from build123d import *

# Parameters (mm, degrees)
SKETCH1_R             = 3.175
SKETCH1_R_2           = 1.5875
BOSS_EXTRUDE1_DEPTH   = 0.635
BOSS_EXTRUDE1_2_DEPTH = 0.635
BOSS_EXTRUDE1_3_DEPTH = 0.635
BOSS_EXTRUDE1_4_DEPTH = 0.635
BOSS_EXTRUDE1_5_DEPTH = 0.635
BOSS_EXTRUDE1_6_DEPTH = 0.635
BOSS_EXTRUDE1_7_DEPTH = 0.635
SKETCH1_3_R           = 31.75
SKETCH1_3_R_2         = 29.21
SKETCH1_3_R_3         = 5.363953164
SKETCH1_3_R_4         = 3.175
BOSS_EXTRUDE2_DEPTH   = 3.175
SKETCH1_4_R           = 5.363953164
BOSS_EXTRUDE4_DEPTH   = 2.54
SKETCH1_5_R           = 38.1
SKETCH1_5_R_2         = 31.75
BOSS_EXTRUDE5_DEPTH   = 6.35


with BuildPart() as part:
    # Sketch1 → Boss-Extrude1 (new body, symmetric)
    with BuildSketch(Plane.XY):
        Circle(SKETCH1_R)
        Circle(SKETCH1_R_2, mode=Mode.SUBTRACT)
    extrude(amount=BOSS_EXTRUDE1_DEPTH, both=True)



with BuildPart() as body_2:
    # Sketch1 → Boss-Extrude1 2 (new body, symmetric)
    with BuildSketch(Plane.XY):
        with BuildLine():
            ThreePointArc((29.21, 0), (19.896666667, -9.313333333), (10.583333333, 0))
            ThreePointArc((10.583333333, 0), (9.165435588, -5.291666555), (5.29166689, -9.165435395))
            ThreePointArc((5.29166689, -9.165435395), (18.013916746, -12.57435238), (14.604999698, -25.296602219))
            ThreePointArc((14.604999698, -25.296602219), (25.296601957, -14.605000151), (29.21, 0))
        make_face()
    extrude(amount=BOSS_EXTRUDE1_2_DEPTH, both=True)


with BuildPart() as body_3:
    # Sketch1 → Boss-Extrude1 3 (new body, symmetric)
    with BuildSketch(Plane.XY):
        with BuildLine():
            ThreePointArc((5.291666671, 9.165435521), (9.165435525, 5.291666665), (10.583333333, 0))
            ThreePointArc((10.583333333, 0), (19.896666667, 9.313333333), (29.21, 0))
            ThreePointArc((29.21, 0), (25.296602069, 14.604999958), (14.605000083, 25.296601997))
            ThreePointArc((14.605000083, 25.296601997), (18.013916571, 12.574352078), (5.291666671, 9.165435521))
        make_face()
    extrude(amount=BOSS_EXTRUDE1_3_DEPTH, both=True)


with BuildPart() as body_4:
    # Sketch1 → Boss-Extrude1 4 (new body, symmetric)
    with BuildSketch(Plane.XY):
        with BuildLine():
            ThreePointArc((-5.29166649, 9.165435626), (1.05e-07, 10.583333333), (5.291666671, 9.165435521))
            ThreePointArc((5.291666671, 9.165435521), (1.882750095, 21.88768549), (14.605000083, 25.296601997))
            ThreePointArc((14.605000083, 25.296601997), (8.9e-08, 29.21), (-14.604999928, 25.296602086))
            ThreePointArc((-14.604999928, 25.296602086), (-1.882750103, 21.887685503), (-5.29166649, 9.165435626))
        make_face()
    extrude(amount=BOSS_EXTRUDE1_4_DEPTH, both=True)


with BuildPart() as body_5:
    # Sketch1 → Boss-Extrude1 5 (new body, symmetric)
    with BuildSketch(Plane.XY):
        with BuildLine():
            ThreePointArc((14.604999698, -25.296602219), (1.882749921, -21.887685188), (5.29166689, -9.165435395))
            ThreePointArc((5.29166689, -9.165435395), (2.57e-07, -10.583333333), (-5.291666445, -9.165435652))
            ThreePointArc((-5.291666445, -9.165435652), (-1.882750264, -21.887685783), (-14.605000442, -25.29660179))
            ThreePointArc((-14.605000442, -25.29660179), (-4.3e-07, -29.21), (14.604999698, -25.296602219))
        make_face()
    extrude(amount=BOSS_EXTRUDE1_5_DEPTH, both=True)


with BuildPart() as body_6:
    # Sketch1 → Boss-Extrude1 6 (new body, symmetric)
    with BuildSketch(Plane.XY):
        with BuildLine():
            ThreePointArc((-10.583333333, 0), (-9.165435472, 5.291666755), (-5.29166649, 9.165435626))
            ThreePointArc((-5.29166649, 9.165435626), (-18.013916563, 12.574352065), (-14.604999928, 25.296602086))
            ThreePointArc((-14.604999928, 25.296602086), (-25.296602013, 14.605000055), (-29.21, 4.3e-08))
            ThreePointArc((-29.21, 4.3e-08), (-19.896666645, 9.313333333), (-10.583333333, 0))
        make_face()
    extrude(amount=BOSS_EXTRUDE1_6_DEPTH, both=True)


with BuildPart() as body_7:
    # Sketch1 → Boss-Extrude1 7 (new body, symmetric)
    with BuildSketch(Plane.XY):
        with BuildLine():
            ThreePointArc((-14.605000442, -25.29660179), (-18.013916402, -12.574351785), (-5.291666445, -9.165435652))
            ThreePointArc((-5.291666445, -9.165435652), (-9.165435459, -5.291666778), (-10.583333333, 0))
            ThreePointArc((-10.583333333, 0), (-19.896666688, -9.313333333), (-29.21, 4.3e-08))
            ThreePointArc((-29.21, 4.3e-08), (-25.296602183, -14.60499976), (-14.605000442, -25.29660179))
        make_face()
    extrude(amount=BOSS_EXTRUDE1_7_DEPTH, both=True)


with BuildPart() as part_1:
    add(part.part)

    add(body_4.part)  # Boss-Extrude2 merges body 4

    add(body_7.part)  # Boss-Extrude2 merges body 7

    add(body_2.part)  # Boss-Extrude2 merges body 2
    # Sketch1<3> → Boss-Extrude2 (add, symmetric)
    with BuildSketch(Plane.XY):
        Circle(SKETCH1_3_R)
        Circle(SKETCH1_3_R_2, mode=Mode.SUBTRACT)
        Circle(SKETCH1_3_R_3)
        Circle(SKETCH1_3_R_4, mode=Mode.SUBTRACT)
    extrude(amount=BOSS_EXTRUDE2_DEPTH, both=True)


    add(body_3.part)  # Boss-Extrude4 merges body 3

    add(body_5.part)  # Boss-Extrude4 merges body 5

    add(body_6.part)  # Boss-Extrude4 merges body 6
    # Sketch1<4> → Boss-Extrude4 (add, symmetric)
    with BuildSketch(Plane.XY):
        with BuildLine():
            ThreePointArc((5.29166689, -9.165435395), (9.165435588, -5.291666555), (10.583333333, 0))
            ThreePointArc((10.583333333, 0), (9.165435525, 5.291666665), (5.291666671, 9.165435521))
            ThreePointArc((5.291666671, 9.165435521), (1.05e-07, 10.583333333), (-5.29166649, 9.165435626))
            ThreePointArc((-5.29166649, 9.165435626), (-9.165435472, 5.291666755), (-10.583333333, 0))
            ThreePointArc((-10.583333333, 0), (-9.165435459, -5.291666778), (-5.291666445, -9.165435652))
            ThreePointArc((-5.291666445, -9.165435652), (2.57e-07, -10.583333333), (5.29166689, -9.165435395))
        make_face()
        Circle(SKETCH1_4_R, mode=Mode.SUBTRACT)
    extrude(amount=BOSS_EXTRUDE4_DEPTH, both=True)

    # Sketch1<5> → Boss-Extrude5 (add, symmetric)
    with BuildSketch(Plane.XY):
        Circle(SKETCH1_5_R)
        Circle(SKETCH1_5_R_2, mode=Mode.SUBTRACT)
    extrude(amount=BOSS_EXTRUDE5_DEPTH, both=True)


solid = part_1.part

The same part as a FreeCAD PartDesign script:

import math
import FreeCAD as App
import Part
import Sketcher
from FreeCAD import Vector
Q = App.Units.Quantity

doc = App.newDocument("Part")
body = doc.addObject("PartDesign::Body", "Body")

# Sketch on XY plane
sketch1 = doc.addObject("Sketcher::SketchObject", "Sketch")
body.addObject(sketch1)
sketch1.AttachmentSupport = (doc.XY_Plane, [""])
sketch1.MapMode = "FlatFace"
sketch1.addGeometry([
    Part.Circle(Vector(0, 0, 0), Vector(0, 0, 1), 3.2),
    Part.Circle(Vector(0, 0, 0), Vector(0, 0, 1), 1.6),
], False)
sketch1.addConstraint([
    Sketcher.Constraint("Coincident", 0, 3, -1, 1),
    Sketcher.Constraint("Coincident", 1, 3, -1, 1),
    Sketcher.Constraint("Diameter", 0, Q("0.25 in")),
    Sketcher.Constraint("Diameter", 1, Q("0.125 in")),
])
pad1 = doc.addObject("PartDesign::Pad", "Pad")
body.addObject(pad1)
pad1.Profile = sketch1
pad1.Length = Q("0.05 in")
pad1.Midplane = True
body2 = doc.addObject("PartDesign::Body", "Body001")

# Sketch on XY plane
sketch2 = doc.addObject("Sketcher::SketchObject", "Sketch001")
body2.addObject(sketch2)
sketch2.AttachmentSupport = (doc.getObject("XY_Plane001"), [""])
sketch2.MapMode = "FlatFace"
sketch2.addGeometry([
    Part.ArcOfCircle(Part.Circle(Vector(20, 0, 0), Vector(0, 0, 1), 9), math.radians(180), math.radians(360)),
    Part.ArcOfCircle(Part.Circle(Vector(0, 0, 0), Vector(0, 0, 1), 11), math.radians(-60), math.radians(0)),
    Part.ArcOfCircle(Part.Circle(Vector(10, -17, 0), Vector(0, 0, 1), 9), math.radians(-60), math.radians(120)),
    Part.ArcOfCircle(Part.Circle(Vector(0, 0, 0), Vector(0, 0, 1), 29), math.radians(-60), math.radians(0)),
], False)
sketch2.addConstraint([
    Sketcher.Constraint("Tangent", 0, 1, 1, 2),
    Sketcher.Constraint("Tangent", 1, 1, 2, 2),
    Sketcher.Constraint("Tangent", 2, 1, 3, 1),
    Sketcher.Constraint("Tangent", 3, 2, 0, 2),
    Sketcher.Constraint("Coincident", 1, 3, -1, 1),
    Sketcher.Constraint("Coincident", 3, 3, -1, 1),
    Sketcher.Constraint("PointOnObject", 0, 3, -1),
    Sketcher.Constraint("Radius", 3, Q("1.15 in")),
    Sketcher.Constraint("DistanceX", -1, 1, 2, 1, Q("0.575 in")),
    Sketcher.Constraint("DistanceX", 2, 3, 0, 1, Q("0.025 in")),
])
pad2 = doc.addObject("PartDesign::Pad", "Pad001")
body2.addObject(pad2)
pad2.Profile = sketch2
pad2.Length = Q("0.05 in")
pad2.Midplane = True
body3 = doc.addObject("PartDesign::Body", "Body002")

# Sketch on XY plane
sketch3 = doc.addObject("Sketcher::SketchObject", "Sketch002")
body3.addObject(sketch3)
sketch3.AttachmentSupport = (doc.getObject("XY_Plane002"), [""])
sketch3.MapMode = "FlatFace"
sketch3.addGeometry([
    Part.ArcOfCircle(Part.Circle(Vector(0, 0, 0), Vector(0, 0, 1), 11), math.radians(0), math.radians(60)),
    Part.ArcOfCircle(Part.Circle(Vector(20, 0, 0), Vector(0, 0, 1), 9), math.radians(0), math.radians(180)),
    Part.ArcOfCircle(Part.Circle(Vector(0, 0, 0), Vector(0, 0, 1), 29), math.radians(0), math.radians(60)),
    Part.ArcOfCircle(Part.Circle(Vector(10, 17, 0), Vector(0, 0, 1), 9), math.radians(-120), math.radians(60)),
], False)
sketch3.addConstraint([
    Sketcher.Constraint("Tangent", 0, 1, 1, 2),
    Sketcher.Constraint("Tangent", 1, 1, 2, 1),
    Sketcher.Constraint("Tangent", 2, 2, 3, 2),
    Sketcher.Constraint("Tangent", 3, 1, 0, 2),
    Sketcher.Constraint("Coincident", 0, 3, -1, 1),
    Sketcher.Constraint("Coincident", 2, 3, -1, 1),
    Sketcher.Constraint("PointOnObject", 1, 3, -1),
    Sketcher.Constraint("Radius", 2, Q("1.15 in")),
    Sketcher.Constraint("DistanceX", -1, 1, 2, 2, Q("0.575 in")),
    Sketcher.Constraint("DistanceX", 3, 3, 0, 1, Q("0.025 in")),
])
pad3 = doc.addObject("PartDesign::Pad", "Pad002")
body3.addObject(pad3)
pad3.Profile = sketch3
pad3.Length = Q("0.05 in")
pad3.Midplane = True
body4 = doc.addObject("PartDesign::Body", "Body003")

# Sketch on XY plane
sketch4 = doc.addObject("Sketcher::SketchObject", "Sketch003")
body4.addObject(sketch4)
sketch4.AttachmentSupport = (doc.getObject("XY_Plane003"), [""])
sketch4.MapMode = "FlatFace"
sketch4.addGeometry([
    Part.ArcOfCircle(Part.Circle(Vector(0, 0, 0), Vector(0, 0, 1), 11), math.radians(60), math.radians(120)),
    Part.ArcOfCircle(Part.Circle(Vector(10, 17, 0), Vector(0, 0, 1), 9), math.radians(60), math.radians(240)),
    Part.ArcOfCircle(Part.Circle(Vector(0, 0, 0), Vector(0, 0, 1), 29), math.radians(60), math.radians(120)),
    Part.ArcOfCircle(Part.Circle(Vector(-10, 17, 0), Vector(0, 0, 1), 9), math.radians(-60), math.radians(120)),
], False)
sketch4.addConstraint([
    Sketcher.Constraint("Tangent", 0, 1, 1, 2),
    Sketcher.Constraint("Tangent", 1, 1, 2, 1),
    Sketcher.Constraint("Tangent", 2, 2, 3, 2),
    Sketcher.Constraint("Tangent", 3, 1, 0, 2),
    Sketcher.Constraint("Coincident", 0, 3, -1, 1),
    Sketcher.Constraint("Coincident", 2, 3, -1, 1),
    Sketcher.Constraint("Horizontal", 1, 3, 3, 3),
    Sketcher.Constraint("Radius", 2, Q("1.15 in")),
    Sketcher.Constraint("DistanceX", 3, 3, 0, 1, Q("0.6 in")),
    Sketcher.Constraint("DistanceX", -1, 1, 1, 1, Q("0.575 in")),
])
pad4 = doc.addObject("PartDesign::Pad", "Pad003")
body4.addObject(pad4)
pad4.Profile = sketch4
pad4.Length = Q("0.05 in")
pad4.Midplane = True
body5 = doc.addObject("PartDesign::Body", "Body004")

# Sketch on XY plane
sketch5 = doc.addObject("Sketcher::SketchObject", "Sketch004")
body5.addObject(sketch5)
sketch5.AttachmentSupport = (doc.getObject("XY_Plane004"), [""])
sketch5.MapMode = "FlatFace"
sketch5.addGeometry([
    Part.ArcOfCircle(Part.Circle(Vector(10, -17, 0), Vector(0, 0, 1), 9), math.radians(120), math.radians(300)),
    Part.ArcOfCircle(Part.Circle(Vector(0, 0, 0), Vector(0, 0, 1), 11), math.radians(-120), math.radians(-60)),
    Part.ArcOfCircle(Part.Circle(Vector(-10, -17, 0), Vector(0, 0, 1), 9), math.radians(-120), math.radians(60)),
    Part.ArcOfCircle(Part.Circle(Vector(0, 0, 0), Vector(0, 0, 1), 29), math.radians(-120), math.radians(-60)),
], False)
sketch5.addConstraint([
    Sketcher.Constraint("Tangent", 0, 1, 1, 2),
    Sketcher.Constraint("Tangent", 1, 1, 2, 2),
    Sketcher.Constraint("Tangent", 2, 1, 3, 1),
    Sketcher.Constraint("Tangent", 3, 2, 0, 2),
    Sketcher.Constraint("Coincident", 1, 3, -1, 1),
    Sketcher.Constraint("Coincident", 3, 3, -1, 1),
    Sketcher.Constraint("Horizontal", 0, 3, 2, 3),
    Sketcher.Constraint("Radius", 3, Q("1.15 in")),
    Sketcher.Constraint("DistanceX", 2, 3, 0, 1, Q("0.6 in")),
    Sketcher.Constraint("DistanceX", 2, 1, -1, 1, Q("0.575 in")),
])
pad5 = doc.addObject("PartDesign::Pad", "Pad004")
body5.addObject(pad5)
pad5.Profile = sketch5
pad5.Length = Q("0.05 in")
pad5.Midplane = True
body6 = doc.addObject("PartDesign::Body", "Body005")

# Sketch on XY plane
sketch6 = doc.addObject("Sketcher::SketchObject", "Sketch005")
body6.addObject(sketch6)
sketch6.AttachmentSupport = (doc.getObject("XY_Plane005"), [""])
sketch6.MapMode = "FlatFace"
sketch6.addGeometry([
    Part.ArcOfCircle(Part.Circle(Vector(0, 0, 0), Vector(0, 0, 1), 11), math.radians(120), math.radians(180)),
    Part.ArcOfCircle(Part.Circle(Vector(-10, 17, 0), Vector(0, 0, 1), 9), math.radians(120), math.radians(300)),
    Part.ArcOfCircle(Part.Circle(Vector(0, 0, 0), Vector(0, 0, 1), 29), math.radians(120), math.radians(180)),
    Part.ArcOfCircle(Part.Circle(Vector(-20, 0, 0), Vector(0, 0, 1), 9), math.radians(0), math.radians(180)),
], False)
sketch6.addConstraint([
    Sketcher.Constraint("Tangent", 0, 1, 1, 2),
    Sketcher.Constraint("Tangent", 1, 1, 2, 1),
    Sketcher.Constraint("Tangent", 2, 2, 3, 2),
    Sketcher.Constraint("Tangent", 3, 1, 0, 2),
    Sketcher.Constraint("Coincident", 0, 3, -1, 1),
    Sketcher.Constraint("Coincident", 2, 3, -1, 1),
    Sketcher.Constraint("PointOnObject", 3, 3, -1),
    Sketcher.Constraint("Radius", 2, Q("1.15 in")),
    Sketcher.Constraint("DistanceX", 1, 1, -1, 1, Q("0.575 in")),
    Sketcher.Constraint("DistanceX", 3, 1, 1, 3, Q("0.025 in")),
])
pad6 = doc.addObject("PartDesign::Pad", "Pad005")
body6.addObject(pad6)
pad6.Profile = sketch6
pad6.Length = Q("0.05 in")
pad6.Midplane = True
body7 = doc.addObject("PartDesign::Body", "Body006")

# Sketch on XY plane
sketch7 = doc.addObject("Sketcher::SketchObject", "Sketch006")
body7.addObject(sketch7)
sketch7.AttachmentSupport = (doc.getObject("XY_Plane006"), [""])
sketch7.MapMode = "FlatFace"
sketch7.addGeometry([
    Part.ArcOfCircle(Part.Circle(Vector(-10, -17, 0), Vector(0, 0, 1), 9), math.radians(60), math.radians(240)),
    Part.ArcOfCircle(Part.Circle(Vector(0, 0, 0), Vector(0, 0, 1), 11), math.radians(180), math.radians(240)),
    Part.ArcOfCircle(Part.Circle(Vector(-20, 0, 0), Vector(0, 0, 1), 9), math.radians(180), math.radians(360)),
    Part.ArcOfCircle(Part.Circle(Vector(0, 0, 0), Vector(0, 0, 1), 29), math.radians(180), math.radians(240)),
], False)
sketch7.addConstraint([
    Sketcher.Constraint("Tangent", 0, 1, 1, 2),
    Sketcher.Constraint("Tangent", 1, 1, 2, 2),
    Sketcher.Constraint("Tangent", 2, 1, 3, 1),
    Sketcher.Constraint("Tangent", 3, 2, 0, 2),
    Sketcher.Constraint("Coincident", 1, 3, -1, 1),
    Sketcher.Constraint("Coincident", 3, 3, -1, 1),
    Sketcher.Constraint("PointOnObject", 2, 3, -1),
    Sketcher.Constraint("Radius", 3, Q("1.15 in")),
    Sketcher.Constraint("DistanceX", 3, 2, -1, 1, Q("0.575 in")),
    Sketcher.Constraint("DistanceX", 1, 1, 0, 3, Q("0.025 in")),
])
pad7 = doc.addObject("PartDesign::Pad", "Pad006")
body7.addObject(pad7)
pad7.Profile = sketch7
pad7.Length = Q("0.05 in")
pad7.Midplane = True
body.AllowCompound = True
doc.recompute()

boolean = doc.addObject("PartDesign::Boolean", "Boolean")
body.addObject(boolean)
boolean.Type = "Fuse"
boolean.addObjects([body4])
doc.recompute()

boolean2 = doc.addObject("PartDesign::Boolean", "Boolean001")
body.addObject(boolean2)
boolean2.Type = "Fuse"
boolean2.addObjects([body7])
doc.recompute()

boolean3 = doc.addObject("PartDesign::Boolean", "Boolean002")
body.addObject(boolean3)
boolean3.Type = "Fuse"
boolean3.addObjects([body2])

# Sketch on XY plane
sketch8 = doc.addObject("Sketcher::SketchObject", "Sketch007")
body.addObject(sketch8)
sketch8.AttachmentSupport = (doc.XY_Plane, [""])
sketch8.MapMode = "FlatFace"
sketch8.addGeometry([
    Part.Circle(Vector(0, 0, 0), Vector(0, 0, 1), 31.8),
    Part.Circle(Vector(0, 0, 0), Vector(0, 0, 1), 29.2),
    Part.Circle(Vector(0, 0, 0), Vector(0, 0, 1), 5.4),
    Part.Circle(Vector(0, 0, 0), Vector(0, 0, 1), 3.2),
], False)
sketch8.addConstraint([
    Sketcher.Constraint("Coincident", 0, 3, -1, 1),
    Sketcher.Constraint("Coincident", 1, 3, -1, 1),
    Sketcher.Constraint("Coincident", 2, 3, -1, 1),
    Sketcher.Constraint("Coincident", 3, 3, -1, 1),
    Sketcher.Constraint("Diameter", 0, Q("2.5 in")),
    Sketcher.Constraint("Diameter", 1, Q("2.3 in")),
    Sketcher.Constraint("Diameter", 3, Q("0.25 in")),
    Sketcher.Constraint("Diameter", 2, 10.727906),
])
pad8 = doc.addObject("PartDesign::Pad", "Pad007")
body.addObject(pad8)
pad8.Profile = sketch8
pad8.Length = Q("0.25 in")
pad8.Midplane = True
doc.recompute()

boolean4 = doc.addObject("PartDesign::Boolean", "Boolean003")
body.addObject(boolean4)
boolean4.Type = "Fuse"
boolean4.addObjects([body3])
doc.recompute()

boolean5 = doc.addObject("PartDesign::Boolean", "Boolean004")
body.addObject(boolean5)
boolean5.Type = "Fuse"
boolean5.addObjects([body5])
doc.recompute()

boolean6 = doc.addObject("PartDesign::Boolean", "Boolean005")
body.addObject(boolean6)
boolean6.Type = "Fuse"
boolean6.addObjects([body6])

# Sketch on XY plane
sketch9 = doc.addObject("Sketcher::SketchObject", "Sketch008")
body.addObject(sketch9)
sketch9.AttachmentSupport = (doc.XY_Plane, [""])
sketch9.MapMode = "FlatFace"
sketch9.addGeometry([
    Part.ArcOfCircle(Part.Circle(Vector(0, 0, 0), Vector(0, 0, 1), 11), math.radians(-60), math.radians(0)),  # 0
    Part.ArcOfCircle(Part.Circle(Vector(0, 0, 0), Vector(0, 0, 1), 11), math.radians(0), math.radians(60)),  # 1
    Part.ArcOfCircle(Part.Circle(Vector(0, 0, 0), Vector(0, 0, 1), 11), math.radians(60), math.radians(120)),  # 2
    Part.ArcOfCircle(Part.Circle(Vector(0, 0, 0), Vector(0, 0, 1), 11), math.radians(120), math.radians(180)),  # 3
    Part.ArcOfCircle(Part.Circle(Vector(0, 0, 0), Vector(0, 0, 1), 11), math.radians(180), math.radians(240)),  # 4
    Part.ArcOfCircle(Part.Circle(Vector(0, 0, 0), Vector(0, 0, 1), 11), math.radians(-120), math.radians(-60)),  # 5
    Part.Circle(Vector(0, 0, 0), Vector(0, 0, 1), 5),  # 6
], False)
sketch9.addConstraint([
    Sketcher.Constraint("Tangent", 0, 2, 1, 1),
    Sketcher.Constraint("Tangent", 1, 2, 2, 1),
    Sketcher.Constraint("Tangent", 2, 2, 3, 1),
    Sketcher.Constraint("Tangent", 3, 2, 4, 1),
    Sketcher.Constraint("Tangent", 4, 2, 5, 1),
    Sketcher.Constraint("Tangent", 5, 2, 0, 1),
    Sketcher.Constraint("Coincident", 0, 3, -1, 1),
    Sketcher.Constraint("Coincident", 2, 3, -1, 1),
    Sketcher.Constraint("Coincident", 6, 3, -1, 1),
    Sketcher.Constraint("Equal", 2, 3),
    Sketcher.Constraint("PointOnObject", 0, 2, -1),
    Sketcher.Constraint("PointOnObject", 3, 2, -1),
    Sketcher.Constraint("Horizontal", 1, 2, 2, 2),
    Sketcher.Constraint("Horizontal", 4, 2, 5, 2),
    Sketcher.Constraint("Vertical", 2, 2, 4, 2),
    Sketcher.Constraint("Diameter", 6, 10.727906),
    Sketcher.Constraint("Radius", 0, 10.583333),
    Sketcher.Constraint("DistanceX", -1, 1, 1, 2, 5.291667),
])
pad9 = doc.addObject("PartDesign::Pad", "Pad008")
body.addObject(pad9)
pad9.Profile = sketch9
pad9.Length = Q("0.2 in")
pad9.Midplane = True

# Sketch on XY plane
sketch10 = doc.addObject("Sketcher::SketchObject", "Sketch009")
body.addObject(sketch10)
sketch10.AttachmentSupport = (doc.XY_Plane, [""])
sketch10.MapMode = "FlatFace"
sketch10.addGeometry([
    Part.Circle(Vector(0, 0, 0), Vector(0, 0, 1), 38),
    Part.Circle(Vector(0, 0, 0), Vector(0, 0, 1), 32),
], False)
sketch10.addConstraint([
    Sketcher.Constraint("Coincident", 0, 3, -1, 1),
    Sketcher.Constraint("Coincident", 1, 3, -1, 1),
    Sketcher.Constraint("Diameter", 0, Q("3 in")),
    Sketcher.Constraint("Diameter", 1, Q("2.5 in")),
])
pad10 = doc.addObject("PartDesign::Pad", "Pad009")
body.addObject(pad10)
pad10.Profile = sketch10
pad10.Length = Q("0.5 in")
pad10.Midplane = True

doc.recompute()
